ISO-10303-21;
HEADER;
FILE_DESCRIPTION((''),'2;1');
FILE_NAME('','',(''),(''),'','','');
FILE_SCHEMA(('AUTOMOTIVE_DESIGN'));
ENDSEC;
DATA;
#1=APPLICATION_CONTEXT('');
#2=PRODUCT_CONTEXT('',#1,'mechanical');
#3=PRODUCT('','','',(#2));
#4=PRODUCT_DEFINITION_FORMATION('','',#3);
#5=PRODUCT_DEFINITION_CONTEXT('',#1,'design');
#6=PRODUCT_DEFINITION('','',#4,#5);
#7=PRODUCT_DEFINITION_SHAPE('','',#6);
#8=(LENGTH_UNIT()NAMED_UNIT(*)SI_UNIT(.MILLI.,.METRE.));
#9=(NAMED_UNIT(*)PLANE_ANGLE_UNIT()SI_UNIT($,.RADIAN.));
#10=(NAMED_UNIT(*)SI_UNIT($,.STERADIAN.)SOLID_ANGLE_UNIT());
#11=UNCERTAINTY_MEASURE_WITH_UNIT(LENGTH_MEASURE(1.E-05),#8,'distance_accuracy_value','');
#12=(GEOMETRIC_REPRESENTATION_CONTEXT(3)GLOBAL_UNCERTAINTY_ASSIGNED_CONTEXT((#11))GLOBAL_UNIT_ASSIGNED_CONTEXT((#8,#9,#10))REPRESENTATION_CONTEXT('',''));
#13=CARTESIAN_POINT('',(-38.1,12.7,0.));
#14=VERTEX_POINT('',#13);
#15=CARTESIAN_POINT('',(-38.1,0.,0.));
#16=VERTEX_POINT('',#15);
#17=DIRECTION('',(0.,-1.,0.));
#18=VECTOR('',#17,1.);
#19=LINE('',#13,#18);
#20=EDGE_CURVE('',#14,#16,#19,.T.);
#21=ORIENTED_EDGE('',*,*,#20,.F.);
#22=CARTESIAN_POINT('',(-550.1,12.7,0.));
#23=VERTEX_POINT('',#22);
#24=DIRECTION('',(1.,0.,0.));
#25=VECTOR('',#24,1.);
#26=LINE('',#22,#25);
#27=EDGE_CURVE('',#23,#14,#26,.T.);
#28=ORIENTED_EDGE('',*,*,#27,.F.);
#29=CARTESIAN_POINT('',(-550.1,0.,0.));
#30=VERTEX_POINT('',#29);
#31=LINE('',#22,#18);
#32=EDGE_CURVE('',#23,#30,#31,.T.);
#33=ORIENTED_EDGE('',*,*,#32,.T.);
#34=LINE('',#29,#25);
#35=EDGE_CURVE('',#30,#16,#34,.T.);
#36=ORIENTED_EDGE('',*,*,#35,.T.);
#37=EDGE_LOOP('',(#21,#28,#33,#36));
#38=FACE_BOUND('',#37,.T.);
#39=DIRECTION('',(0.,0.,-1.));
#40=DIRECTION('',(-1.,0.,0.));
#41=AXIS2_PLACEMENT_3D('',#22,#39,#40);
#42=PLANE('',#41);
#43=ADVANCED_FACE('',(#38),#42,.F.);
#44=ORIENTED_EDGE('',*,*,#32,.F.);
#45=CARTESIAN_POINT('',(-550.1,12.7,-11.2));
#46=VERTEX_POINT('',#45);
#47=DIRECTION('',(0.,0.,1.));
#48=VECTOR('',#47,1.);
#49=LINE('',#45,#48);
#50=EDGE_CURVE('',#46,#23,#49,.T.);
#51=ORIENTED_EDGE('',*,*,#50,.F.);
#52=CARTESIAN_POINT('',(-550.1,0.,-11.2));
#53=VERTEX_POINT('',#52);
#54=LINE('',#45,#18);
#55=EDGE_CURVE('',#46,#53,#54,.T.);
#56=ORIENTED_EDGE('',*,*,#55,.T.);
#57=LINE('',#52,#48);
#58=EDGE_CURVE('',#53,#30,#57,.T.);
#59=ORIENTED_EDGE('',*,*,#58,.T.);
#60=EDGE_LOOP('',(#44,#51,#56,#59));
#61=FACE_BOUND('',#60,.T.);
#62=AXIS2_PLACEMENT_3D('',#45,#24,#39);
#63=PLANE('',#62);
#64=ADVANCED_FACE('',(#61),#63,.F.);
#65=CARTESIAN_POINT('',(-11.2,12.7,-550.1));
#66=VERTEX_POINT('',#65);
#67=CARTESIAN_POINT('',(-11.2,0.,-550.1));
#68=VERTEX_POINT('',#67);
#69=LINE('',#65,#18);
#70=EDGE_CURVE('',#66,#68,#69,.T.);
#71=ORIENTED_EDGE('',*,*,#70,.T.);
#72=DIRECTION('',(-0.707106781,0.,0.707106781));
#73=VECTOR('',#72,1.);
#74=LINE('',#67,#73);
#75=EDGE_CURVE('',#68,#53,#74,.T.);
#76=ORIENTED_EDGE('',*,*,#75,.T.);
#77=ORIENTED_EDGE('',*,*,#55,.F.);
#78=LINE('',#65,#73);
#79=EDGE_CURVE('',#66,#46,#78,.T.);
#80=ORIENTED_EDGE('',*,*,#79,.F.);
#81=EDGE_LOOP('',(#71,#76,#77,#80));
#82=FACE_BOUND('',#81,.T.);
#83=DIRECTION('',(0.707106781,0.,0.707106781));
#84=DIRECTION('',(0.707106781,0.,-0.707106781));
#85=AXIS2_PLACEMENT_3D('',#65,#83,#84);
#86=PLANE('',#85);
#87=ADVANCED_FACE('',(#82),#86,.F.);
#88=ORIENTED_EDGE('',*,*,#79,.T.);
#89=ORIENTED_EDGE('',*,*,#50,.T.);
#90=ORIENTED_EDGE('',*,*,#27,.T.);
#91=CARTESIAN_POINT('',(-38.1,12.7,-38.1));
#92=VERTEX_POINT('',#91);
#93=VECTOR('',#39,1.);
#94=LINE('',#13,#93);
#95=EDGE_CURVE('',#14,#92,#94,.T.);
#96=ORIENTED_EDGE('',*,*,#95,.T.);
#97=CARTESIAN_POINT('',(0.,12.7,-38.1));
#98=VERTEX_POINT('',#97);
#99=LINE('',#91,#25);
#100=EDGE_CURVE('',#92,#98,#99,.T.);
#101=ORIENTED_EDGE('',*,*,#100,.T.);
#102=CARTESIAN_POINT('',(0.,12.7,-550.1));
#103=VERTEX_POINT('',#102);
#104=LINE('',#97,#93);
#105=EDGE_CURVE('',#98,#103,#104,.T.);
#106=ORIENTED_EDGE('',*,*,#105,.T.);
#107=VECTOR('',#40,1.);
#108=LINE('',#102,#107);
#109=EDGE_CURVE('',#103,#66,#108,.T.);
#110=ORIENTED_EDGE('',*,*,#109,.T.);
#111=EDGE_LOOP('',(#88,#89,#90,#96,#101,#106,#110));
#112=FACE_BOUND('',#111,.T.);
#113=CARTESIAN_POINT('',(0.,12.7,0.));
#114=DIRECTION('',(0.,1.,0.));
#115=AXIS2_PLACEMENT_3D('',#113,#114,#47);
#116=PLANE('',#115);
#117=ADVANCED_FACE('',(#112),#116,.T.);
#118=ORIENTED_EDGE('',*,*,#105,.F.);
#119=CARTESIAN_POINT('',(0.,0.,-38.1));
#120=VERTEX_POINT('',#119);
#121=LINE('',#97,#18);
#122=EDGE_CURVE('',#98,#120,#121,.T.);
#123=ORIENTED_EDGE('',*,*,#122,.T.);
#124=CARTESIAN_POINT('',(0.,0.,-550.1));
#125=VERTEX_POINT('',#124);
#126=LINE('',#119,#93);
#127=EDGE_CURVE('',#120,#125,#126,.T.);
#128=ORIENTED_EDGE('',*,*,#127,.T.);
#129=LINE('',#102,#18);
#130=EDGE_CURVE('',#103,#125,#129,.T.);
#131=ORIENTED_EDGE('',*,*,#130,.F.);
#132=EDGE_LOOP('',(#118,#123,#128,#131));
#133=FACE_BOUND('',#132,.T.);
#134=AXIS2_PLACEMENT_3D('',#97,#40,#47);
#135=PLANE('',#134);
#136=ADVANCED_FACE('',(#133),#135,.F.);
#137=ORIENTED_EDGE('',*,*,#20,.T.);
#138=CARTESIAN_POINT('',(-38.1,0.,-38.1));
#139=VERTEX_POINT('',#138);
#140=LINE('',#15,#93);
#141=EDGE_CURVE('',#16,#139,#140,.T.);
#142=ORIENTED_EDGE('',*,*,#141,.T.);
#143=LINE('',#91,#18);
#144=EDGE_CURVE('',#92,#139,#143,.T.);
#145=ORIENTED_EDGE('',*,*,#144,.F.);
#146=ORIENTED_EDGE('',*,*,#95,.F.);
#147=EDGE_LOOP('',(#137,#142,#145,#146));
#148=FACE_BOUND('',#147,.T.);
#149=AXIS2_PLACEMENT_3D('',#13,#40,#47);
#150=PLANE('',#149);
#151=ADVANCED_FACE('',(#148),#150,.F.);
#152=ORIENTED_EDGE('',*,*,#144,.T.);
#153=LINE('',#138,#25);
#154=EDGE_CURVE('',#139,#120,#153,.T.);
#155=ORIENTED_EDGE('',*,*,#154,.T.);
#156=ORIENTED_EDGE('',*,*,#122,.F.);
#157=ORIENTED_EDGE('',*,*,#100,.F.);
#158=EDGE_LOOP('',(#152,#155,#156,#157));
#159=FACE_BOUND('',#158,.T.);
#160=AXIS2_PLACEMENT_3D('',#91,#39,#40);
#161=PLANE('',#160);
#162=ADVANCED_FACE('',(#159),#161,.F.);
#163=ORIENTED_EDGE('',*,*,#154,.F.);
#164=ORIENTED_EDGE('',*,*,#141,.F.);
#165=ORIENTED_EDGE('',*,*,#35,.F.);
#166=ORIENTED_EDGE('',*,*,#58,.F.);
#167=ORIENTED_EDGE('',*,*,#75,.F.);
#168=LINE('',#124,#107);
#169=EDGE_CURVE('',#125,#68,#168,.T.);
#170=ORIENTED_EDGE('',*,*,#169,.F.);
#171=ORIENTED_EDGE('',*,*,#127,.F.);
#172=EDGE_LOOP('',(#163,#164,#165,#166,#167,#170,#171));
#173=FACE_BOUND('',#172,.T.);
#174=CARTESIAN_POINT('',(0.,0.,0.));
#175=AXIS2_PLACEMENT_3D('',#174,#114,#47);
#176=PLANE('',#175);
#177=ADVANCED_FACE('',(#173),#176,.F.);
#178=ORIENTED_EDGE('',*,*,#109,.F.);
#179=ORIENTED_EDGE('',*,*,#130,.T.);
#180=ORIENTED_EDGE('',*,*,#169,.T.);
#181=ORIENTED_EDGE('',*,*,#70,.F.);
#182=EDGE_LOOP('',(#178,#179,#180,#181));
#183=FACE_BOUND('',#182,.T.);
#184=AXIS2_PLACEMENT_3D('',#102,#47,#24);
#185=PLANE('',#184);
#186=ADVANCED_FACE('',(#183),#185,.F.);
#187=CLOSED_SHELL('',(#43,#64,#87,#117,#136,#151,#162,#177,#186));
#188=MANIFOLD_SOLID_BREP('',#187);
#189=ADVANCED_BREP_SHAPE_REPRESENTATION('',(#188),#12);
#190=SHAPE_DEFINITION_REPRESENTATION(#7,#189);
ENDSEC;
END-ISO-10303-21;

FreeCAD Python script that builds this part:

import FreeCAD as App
import Part
import Sketcher
from FreeCAD import Vector

doc = App.newDocument("Part")
body = doc.addObject("PartDesign::Body", "Body")

# Sketch on XZ plane
sketch1 = doc.addObject("Sketcher::SketchObject", "Sketch")
body.addObject(sketch1)
sketch1.AttachmentSupport = (doc.XZ_Plane, [""])
sketch1.MapMode = "FlatFace"
sketch1.addGeometry(Part.LineSegment(Vector(-11, -550, 0), Vector(-550, -11, 0)), False)
sketch1.addGeometry(Part.LineSegment(Vector(-550, -11, 0), Vector(-550, 0, 0)), False)
sketch1.addGeometry(Part.LineSegment(Vector(-550, 0, 0), Vector(-38, 0, 0)), False)
sketch1.addGeometry(Part.LineSegment(Vector(-38, 0, 0), Vector(-38, -38, 0)), False)
sketch1.addGeometry(Part.LineSegment(Vector(-38, -38, 0), Vector(0, -38, 0)), False)
sketch1.addGeometry(Part.LineSegment(Vector(0, -38, 0), Vector(0, -550, 0)), False)
sketch1.addGeometry(Part.LineSegment(Vector(0, -550, 0), Vector(-11, -550, 0)), False)
sketch1.addConstraint(Sketcher.Constraint("Coincident", 0, 2, 1, 1))
sketch1.addConstraint(Sketcher.Constraint("Coincident", 1, 2, 2, 1))
sketch1.addConstraint(Sketcher.Constraint("Coincident", 2, 2, 3, 1))
sketch1.addConstraint(Sketcher.Constraint("Coincident", 3, 2, 4, 1))
sketch1.addConstraint(Sketcher.Constraint("Coincident", 4, 2, 5, 1))
sketch1.addConstraint(Sketcher.Constraint("Coincident", 5, 2, 6, 1))
sketch1.addConstraint(Sketcher.Constraint("Coincident", 6, 2, 0, 1))
sketch1.addConstraint(Sketcher.Constraint("Vertical", 1))
sketch1.addConstraint(Sketcher.Constraint("Horizontal", 2))
sketch1.addConstraint(Sketcher.Constraint("Vertical", 3))
sketch1.addConstraint(Sketcher.Constraint("Horizontal", 4))
sketch1.addConstraint(Sketcher.Constraint("Vertical", 5))
sketch1.addConstraint(Sketcher.Constraint("Horizontal", 6))
sketch1.addConstraint(Sketcher.Constraint("PointOnObject", 1, 2, -1))
sketch1.addConstraint(Sketcher.Constraint("PointOnObject", 4, 2, -2))
sketch1.addConstraint(Sketcher.Constraint("Equal", 6, 1))
sketch1.addConstraint(Sketcher.Constraint("Equal", 4, 3))
sketch1.addConstraint(Sketcher.Constraint("Equal", 2, 5))
sketch1.addConstraint(Sketcher.Constraint("DistanceX", 2, 1, 2, 2, 512.0))
sketch1.addConstraint(Sketcher.Constraint("DistanceX", 4, 1, 4, 2, 38.1))
sketch1.addConstraint(Sketcher.Constraint("DistanceX", 6, 2, 6, 1, 11.2))
pad1 = doc.addObject("PartDesign::Pad", "Pad")
body.addObject(pad1)
pad1.Profile = sketch1
pad1.Length = 12.7
pad1.Reversed = True

doc.recompute()
